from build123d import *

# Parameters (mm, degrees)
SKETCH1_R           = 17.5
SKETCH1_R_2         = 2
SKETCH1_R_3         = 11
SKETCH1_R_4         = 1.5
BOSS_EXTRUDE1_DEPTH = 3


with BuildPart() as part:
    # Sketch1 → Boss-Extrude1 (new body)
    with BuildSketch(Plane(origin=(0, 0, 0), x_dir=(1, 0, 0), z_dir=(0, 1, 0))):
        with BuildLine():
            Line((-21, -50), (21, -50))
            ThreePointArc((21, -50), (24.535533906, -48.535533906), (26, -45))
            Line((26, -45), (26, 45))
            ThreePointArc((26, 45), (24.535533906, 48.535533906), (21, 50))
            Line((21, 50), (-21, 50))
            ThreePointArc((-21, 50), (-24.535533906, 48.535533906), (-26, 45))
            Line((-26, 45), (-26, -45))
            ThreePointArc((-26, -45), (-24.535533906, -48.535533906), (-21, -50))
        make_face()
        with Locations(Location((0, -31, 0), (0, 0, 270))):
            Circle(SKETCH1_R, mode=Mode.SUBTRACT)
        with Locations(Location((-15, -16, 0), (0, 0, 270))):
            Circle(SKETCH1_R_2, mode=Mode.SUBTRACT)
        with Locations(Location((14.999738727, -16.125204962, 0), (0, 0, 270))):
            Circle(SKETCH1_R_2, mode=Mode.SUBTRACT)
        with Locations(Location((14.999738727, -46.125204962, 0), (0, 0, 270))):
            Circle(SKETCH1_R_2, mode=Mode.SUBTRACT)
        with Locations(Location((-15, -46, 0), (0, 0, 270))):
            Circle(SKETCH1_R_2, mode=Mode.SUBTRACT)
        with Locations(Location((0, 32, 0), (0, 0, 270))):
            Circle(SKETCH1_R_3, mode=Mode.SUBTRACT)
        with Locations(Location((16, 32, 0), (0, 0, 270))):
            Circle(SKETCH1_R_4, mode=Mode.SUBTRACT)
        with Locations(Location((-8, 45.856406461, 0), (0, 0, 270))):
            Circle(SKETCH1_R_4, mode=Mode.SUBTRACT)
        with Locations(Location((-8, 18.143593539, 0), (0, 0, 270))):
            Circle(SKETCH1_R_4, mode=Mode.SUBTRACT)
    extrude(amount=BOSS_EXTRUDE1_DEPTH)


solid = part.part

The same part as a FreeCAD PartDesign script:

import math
import FreeCAD as App
import Part
import Sketcher
from FreeCAD import Vector

doc = App.newDocument("Part")
params = doc.addObject("Spreadsheet::Sheet", "Params")
for row, (alias, value) in enumerate([
    ("sketch1_diameter", "4 mm"),
    ("sketch1_diameter2", "35 mm"),
    ("sketch1_diameter3", "3 mm"),
    ("sketch1_diameter4", "22 mm"),
    ("sketch1_radius", "5 mm"),
    ("pad1_length", "3 mm"),
], start=1):
    params.set(f"A{row}", alias)
    params.set(f"B{row}", "=" + value)
    params.setAlias(f"B{row}", alias)

body = doc.addObject("PartDesign::Body", "Body")

# Sketch on XZ plane
sketch1 = doc.addObject("Sketcher::SketchObject", "Sketch")
body.addObject(sketch1)
sketch1.AttachmentSupport = (doc.XZ_Plane, [""])
sketch1.MapMode = "FlatFace"
sketch1.addGeometry([
    Part.LineSegment(Vector(-21, 50, 0), Vector(21, 50, 0)),  # 0
    Part.ArcOfCircle(Part.Circle(Vector(21, 45, 0), Vector(0, 0, 1), 5), math.radians(0), math.radians(90)),  # 1
    Part.LineSegment(Vector(26, 45, 0), Vector(26, -45, 0)),  # 2
    Part.ArcOfCircle(Part.Circle(Vector(21, -45, 0), Vector(0, 0, 1), 5), math.radians(-90), math.radians(0)),  # 3
    Part.LineSegment(Vector(21, -50, 0), Vector(-21, -50, 0)),  # 4
    Part.ArcOfCircle(Part.Circle(Vector(-21, -45, 0), Vector(0, 0, 1), 5), math.radians(180), math.radians(270)),  # 5
    Part.LineSegment(Vector(-26, -45, 0), Vector(-26, 45, 0)),  # 6
    Part.ArcOfCircle(Part.Circle(Vector(-21, 45, 0), Vector(0, 0, 1), 5), math.radians(90), math.radians(180)),  # 7
    Part.Circle(Vector(-15, 46, 0), Vector(0, 0, 1), 2),  # 8
    Part.Circle(Vector(-15, 16, 0), Vector(0, 0, 1), 2),  # 9
    Part.Circle(Vector(0, 31, 0), Vector(0, 0, 1), 17.5),  # 10
    Part.Circle(Vector(15, 46.1, 0), Vector(0, 0, 1), 2),  # 11
    Part.Circle(Vector(15, 16.1, 0), Vector(0, 0, 1), 2),  # 12
    Part.Circle(Vector(-8, -18.1, 0), Vector(0, 0, 1), 1.5),  # 13
    Part.Circle(Vector(-8, -45.9, 0), Vector(0, 0, 1), 1.5),  # 14
    Part.Circle(Vector(0, -32, 0), Vector(0, 0, 1), 11),  # 15
    Part.Circle(Vector(16, -32, 0), Vector(0, 0, 1), 1.5),  # 16
], False)
sketch1.addConstraint([
    Sketcher.Constraint("Tangent", 0, 2, 1, 2),
    Sketcher.Constraint("Tangent", 1, 1, 2, 1),
    Sketcher.Constraint("Tangent", 2, 2, 3, 2),
    Sketcher.Constraint("Tangent", 3, 1, 4, 1),
    Sketcher.Constraint("Tangent", 4, 2, 5, 2),
    Sketcher.Constraint("Tangent", 5, 1, 6, 1),
    Sketcher.Constraint("Tangent", 6, 2, 7, 2),
    Sketcher.Constraint("Tangent", 7, 1, 0, 1),
    Sketcher.Constraint("Horizontal", 0),
    Sketcher.Constraint("Vertical", 2),
    Sketcher.Constraint("Horizontal", 4),
    Sketcher.Constraint("Vertical", 6),
    Sketcher.Constraint("Equal", 1, 3),
    Sketcher.Constraint("Equal", 3, 5),
    Sketcher.Constraint("Equal", 5, 7),
    Sketcher.Constraint("Equal", 8, 9),
    Sketcher.Constraint("Equal", 9, 11),
    Sketcher.Constraint("Equal", 11, 12),
    Sketcher.Constraint("Equal", 13, 14),
    Sketcher.Constraint("Equal", 14, 16),
    Sketcher.Constraint("Symmetric", 1, 3, 5, 3, -1, 1),
    Sketcher.Constraint("PointOnObject", 10, 3, -2),
    Sketcher.Constraint("PointOnObject", 15, 3, -2),
    Sketcher.Constraint("Horizontal", 15, 3, 16, 3),
    Sketcher.Constraint("Vertical", 8, 3, 9, 3),
    Sketcher.Constraint("Vertical", 11, 3, 12, 3),
    Sketcher.Constraint("Vertical", 13, 3, 14, 3),
    Sketcher.Constraint("Diameter", 8, 4.0),
    Sketcher.Constraint("Diameter", 10, 35.0),
    Sketcher.Constraint("Diameter", 13, 3.0),
    Sketcher.Constraint("Diameter", 15, 22.0),
    Sketcher.Constraint("Radius", 1, 5.0),
    Sketcher.Constraint("DistanceX", 0, 1, 0, 2, 42.0),
    Sketcher.Constraint("DistanceY", 2, 2, 2, 1, 90.0),
    Sketcher.Constraint("DistanceX", 8, 3, -1, 1, 15.0),
    Sketcher.Constraint("DistanceY", -1, 1, 8, 3, 46.0),
    Sketcher.Constraint("DistanceY", -1, 1, 9, 3, 16.0),
    Sketcher.Constraint("DistanceY", -1, 1, 10, 3, 31.0),
    Sketcher.Constraint("DistanceX", 13, 3, -1, 1, 8.0),
    Sketcher.Constraint("DistanceY", 15, 3, -1, 1, 32.0),
    Sketcher.Constraint("DistanceX", -1, 1, 16, 3, 16.0),
    Sketcher.Constraint("DistanceY", 12, 3, 11, 3, 30.0),
    Sketcher.Constraint("DistanceY", 13, 3, 12, 3, 34.268799),
    Sketcher.Constraint("DistanceX", -1, 1, 11, 3, 14.999739),
    Sketcher.Constraint("DistanceY", 14, 3, 12, 3, 61.981611),
    Sketcher.Constraint("DistanceY", -1, 1, 11, 3, 46.125205),
])
sketch1.setExpression("Constraints[27]", "Params.sketch1_diameter")
sketch1.setExpression("Constraints[28]", "Params.sketch1_diameter2")
sketch1.setExpression("Constraints[29]", "Params.sketch1_diameter3")
sketch1.setExpression("Constraints[30]", "Params.sketch1_diameter4")
sketch1.setExpression("Constraints[31]", "Params.sketch1_radius")
pad1 = doc.addObject("PartDesign::Pad", "Pad")
body.addObject(pad1)
pad1.Profile = sketch1
pad1.setExpression("Length", "Params.pad1_length")
pad1.Reversed = True

doc.recompute()
